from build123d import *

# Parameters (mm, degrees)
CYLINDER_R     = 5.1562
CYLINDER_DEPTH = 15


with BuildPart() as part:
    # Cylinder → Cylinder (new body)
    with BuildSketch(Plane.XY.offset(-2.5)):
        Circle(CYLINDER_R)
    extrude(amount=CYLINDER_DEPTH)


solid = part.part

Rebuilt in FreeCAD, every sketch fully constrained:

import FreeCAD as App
import Part
import Sketcher

V = App.Vector
Q = App.Units.Quantity

doc = App.newDocument("Part")
params = doc.addObject("Spreadsheet::Sheet", "Params")
for row, (alias, value) in enumerate([
    ("pad1_length", "15 mm"),
], start=1):
    params.set(f"A{row}", alias)
    params.set(f"B{row}", "=" + value)
    params.setAlias(f"B{row}", alias)

body = doc.addObject("PartDesign::Body", "Body")

# Sketch on XY plane
sketch1 = body.newObject("Sketcher::SketchObject", "Sketch")
sketch1.AttachmentSupport = (doc.getObject("XY_Plane"), [""])
sketch1.MapMode = "FlatFace"
sketch1.AttachmentOffset = App.Placement(V(0, 0, -2.5), App.Rotation())
sketch1.addGeometry(Part.Circle(V(0, 0, 0), V(0, 0, 1), 5.1562), False)
sketch1.addConstraint(Sketcher.Constraint("Coincident", 0, 3, -1, 1))
sketch1.addConstraint(Sketcher.Constraint("Diameter", 0, Q("10.3124 mm")))
pad1 = body.newObject("PartDesign::Pad", "Pad")
pad1.Profile = sketch1
pad1.setExpression("Length", "Params.pad1_length")

doc.recompute()
